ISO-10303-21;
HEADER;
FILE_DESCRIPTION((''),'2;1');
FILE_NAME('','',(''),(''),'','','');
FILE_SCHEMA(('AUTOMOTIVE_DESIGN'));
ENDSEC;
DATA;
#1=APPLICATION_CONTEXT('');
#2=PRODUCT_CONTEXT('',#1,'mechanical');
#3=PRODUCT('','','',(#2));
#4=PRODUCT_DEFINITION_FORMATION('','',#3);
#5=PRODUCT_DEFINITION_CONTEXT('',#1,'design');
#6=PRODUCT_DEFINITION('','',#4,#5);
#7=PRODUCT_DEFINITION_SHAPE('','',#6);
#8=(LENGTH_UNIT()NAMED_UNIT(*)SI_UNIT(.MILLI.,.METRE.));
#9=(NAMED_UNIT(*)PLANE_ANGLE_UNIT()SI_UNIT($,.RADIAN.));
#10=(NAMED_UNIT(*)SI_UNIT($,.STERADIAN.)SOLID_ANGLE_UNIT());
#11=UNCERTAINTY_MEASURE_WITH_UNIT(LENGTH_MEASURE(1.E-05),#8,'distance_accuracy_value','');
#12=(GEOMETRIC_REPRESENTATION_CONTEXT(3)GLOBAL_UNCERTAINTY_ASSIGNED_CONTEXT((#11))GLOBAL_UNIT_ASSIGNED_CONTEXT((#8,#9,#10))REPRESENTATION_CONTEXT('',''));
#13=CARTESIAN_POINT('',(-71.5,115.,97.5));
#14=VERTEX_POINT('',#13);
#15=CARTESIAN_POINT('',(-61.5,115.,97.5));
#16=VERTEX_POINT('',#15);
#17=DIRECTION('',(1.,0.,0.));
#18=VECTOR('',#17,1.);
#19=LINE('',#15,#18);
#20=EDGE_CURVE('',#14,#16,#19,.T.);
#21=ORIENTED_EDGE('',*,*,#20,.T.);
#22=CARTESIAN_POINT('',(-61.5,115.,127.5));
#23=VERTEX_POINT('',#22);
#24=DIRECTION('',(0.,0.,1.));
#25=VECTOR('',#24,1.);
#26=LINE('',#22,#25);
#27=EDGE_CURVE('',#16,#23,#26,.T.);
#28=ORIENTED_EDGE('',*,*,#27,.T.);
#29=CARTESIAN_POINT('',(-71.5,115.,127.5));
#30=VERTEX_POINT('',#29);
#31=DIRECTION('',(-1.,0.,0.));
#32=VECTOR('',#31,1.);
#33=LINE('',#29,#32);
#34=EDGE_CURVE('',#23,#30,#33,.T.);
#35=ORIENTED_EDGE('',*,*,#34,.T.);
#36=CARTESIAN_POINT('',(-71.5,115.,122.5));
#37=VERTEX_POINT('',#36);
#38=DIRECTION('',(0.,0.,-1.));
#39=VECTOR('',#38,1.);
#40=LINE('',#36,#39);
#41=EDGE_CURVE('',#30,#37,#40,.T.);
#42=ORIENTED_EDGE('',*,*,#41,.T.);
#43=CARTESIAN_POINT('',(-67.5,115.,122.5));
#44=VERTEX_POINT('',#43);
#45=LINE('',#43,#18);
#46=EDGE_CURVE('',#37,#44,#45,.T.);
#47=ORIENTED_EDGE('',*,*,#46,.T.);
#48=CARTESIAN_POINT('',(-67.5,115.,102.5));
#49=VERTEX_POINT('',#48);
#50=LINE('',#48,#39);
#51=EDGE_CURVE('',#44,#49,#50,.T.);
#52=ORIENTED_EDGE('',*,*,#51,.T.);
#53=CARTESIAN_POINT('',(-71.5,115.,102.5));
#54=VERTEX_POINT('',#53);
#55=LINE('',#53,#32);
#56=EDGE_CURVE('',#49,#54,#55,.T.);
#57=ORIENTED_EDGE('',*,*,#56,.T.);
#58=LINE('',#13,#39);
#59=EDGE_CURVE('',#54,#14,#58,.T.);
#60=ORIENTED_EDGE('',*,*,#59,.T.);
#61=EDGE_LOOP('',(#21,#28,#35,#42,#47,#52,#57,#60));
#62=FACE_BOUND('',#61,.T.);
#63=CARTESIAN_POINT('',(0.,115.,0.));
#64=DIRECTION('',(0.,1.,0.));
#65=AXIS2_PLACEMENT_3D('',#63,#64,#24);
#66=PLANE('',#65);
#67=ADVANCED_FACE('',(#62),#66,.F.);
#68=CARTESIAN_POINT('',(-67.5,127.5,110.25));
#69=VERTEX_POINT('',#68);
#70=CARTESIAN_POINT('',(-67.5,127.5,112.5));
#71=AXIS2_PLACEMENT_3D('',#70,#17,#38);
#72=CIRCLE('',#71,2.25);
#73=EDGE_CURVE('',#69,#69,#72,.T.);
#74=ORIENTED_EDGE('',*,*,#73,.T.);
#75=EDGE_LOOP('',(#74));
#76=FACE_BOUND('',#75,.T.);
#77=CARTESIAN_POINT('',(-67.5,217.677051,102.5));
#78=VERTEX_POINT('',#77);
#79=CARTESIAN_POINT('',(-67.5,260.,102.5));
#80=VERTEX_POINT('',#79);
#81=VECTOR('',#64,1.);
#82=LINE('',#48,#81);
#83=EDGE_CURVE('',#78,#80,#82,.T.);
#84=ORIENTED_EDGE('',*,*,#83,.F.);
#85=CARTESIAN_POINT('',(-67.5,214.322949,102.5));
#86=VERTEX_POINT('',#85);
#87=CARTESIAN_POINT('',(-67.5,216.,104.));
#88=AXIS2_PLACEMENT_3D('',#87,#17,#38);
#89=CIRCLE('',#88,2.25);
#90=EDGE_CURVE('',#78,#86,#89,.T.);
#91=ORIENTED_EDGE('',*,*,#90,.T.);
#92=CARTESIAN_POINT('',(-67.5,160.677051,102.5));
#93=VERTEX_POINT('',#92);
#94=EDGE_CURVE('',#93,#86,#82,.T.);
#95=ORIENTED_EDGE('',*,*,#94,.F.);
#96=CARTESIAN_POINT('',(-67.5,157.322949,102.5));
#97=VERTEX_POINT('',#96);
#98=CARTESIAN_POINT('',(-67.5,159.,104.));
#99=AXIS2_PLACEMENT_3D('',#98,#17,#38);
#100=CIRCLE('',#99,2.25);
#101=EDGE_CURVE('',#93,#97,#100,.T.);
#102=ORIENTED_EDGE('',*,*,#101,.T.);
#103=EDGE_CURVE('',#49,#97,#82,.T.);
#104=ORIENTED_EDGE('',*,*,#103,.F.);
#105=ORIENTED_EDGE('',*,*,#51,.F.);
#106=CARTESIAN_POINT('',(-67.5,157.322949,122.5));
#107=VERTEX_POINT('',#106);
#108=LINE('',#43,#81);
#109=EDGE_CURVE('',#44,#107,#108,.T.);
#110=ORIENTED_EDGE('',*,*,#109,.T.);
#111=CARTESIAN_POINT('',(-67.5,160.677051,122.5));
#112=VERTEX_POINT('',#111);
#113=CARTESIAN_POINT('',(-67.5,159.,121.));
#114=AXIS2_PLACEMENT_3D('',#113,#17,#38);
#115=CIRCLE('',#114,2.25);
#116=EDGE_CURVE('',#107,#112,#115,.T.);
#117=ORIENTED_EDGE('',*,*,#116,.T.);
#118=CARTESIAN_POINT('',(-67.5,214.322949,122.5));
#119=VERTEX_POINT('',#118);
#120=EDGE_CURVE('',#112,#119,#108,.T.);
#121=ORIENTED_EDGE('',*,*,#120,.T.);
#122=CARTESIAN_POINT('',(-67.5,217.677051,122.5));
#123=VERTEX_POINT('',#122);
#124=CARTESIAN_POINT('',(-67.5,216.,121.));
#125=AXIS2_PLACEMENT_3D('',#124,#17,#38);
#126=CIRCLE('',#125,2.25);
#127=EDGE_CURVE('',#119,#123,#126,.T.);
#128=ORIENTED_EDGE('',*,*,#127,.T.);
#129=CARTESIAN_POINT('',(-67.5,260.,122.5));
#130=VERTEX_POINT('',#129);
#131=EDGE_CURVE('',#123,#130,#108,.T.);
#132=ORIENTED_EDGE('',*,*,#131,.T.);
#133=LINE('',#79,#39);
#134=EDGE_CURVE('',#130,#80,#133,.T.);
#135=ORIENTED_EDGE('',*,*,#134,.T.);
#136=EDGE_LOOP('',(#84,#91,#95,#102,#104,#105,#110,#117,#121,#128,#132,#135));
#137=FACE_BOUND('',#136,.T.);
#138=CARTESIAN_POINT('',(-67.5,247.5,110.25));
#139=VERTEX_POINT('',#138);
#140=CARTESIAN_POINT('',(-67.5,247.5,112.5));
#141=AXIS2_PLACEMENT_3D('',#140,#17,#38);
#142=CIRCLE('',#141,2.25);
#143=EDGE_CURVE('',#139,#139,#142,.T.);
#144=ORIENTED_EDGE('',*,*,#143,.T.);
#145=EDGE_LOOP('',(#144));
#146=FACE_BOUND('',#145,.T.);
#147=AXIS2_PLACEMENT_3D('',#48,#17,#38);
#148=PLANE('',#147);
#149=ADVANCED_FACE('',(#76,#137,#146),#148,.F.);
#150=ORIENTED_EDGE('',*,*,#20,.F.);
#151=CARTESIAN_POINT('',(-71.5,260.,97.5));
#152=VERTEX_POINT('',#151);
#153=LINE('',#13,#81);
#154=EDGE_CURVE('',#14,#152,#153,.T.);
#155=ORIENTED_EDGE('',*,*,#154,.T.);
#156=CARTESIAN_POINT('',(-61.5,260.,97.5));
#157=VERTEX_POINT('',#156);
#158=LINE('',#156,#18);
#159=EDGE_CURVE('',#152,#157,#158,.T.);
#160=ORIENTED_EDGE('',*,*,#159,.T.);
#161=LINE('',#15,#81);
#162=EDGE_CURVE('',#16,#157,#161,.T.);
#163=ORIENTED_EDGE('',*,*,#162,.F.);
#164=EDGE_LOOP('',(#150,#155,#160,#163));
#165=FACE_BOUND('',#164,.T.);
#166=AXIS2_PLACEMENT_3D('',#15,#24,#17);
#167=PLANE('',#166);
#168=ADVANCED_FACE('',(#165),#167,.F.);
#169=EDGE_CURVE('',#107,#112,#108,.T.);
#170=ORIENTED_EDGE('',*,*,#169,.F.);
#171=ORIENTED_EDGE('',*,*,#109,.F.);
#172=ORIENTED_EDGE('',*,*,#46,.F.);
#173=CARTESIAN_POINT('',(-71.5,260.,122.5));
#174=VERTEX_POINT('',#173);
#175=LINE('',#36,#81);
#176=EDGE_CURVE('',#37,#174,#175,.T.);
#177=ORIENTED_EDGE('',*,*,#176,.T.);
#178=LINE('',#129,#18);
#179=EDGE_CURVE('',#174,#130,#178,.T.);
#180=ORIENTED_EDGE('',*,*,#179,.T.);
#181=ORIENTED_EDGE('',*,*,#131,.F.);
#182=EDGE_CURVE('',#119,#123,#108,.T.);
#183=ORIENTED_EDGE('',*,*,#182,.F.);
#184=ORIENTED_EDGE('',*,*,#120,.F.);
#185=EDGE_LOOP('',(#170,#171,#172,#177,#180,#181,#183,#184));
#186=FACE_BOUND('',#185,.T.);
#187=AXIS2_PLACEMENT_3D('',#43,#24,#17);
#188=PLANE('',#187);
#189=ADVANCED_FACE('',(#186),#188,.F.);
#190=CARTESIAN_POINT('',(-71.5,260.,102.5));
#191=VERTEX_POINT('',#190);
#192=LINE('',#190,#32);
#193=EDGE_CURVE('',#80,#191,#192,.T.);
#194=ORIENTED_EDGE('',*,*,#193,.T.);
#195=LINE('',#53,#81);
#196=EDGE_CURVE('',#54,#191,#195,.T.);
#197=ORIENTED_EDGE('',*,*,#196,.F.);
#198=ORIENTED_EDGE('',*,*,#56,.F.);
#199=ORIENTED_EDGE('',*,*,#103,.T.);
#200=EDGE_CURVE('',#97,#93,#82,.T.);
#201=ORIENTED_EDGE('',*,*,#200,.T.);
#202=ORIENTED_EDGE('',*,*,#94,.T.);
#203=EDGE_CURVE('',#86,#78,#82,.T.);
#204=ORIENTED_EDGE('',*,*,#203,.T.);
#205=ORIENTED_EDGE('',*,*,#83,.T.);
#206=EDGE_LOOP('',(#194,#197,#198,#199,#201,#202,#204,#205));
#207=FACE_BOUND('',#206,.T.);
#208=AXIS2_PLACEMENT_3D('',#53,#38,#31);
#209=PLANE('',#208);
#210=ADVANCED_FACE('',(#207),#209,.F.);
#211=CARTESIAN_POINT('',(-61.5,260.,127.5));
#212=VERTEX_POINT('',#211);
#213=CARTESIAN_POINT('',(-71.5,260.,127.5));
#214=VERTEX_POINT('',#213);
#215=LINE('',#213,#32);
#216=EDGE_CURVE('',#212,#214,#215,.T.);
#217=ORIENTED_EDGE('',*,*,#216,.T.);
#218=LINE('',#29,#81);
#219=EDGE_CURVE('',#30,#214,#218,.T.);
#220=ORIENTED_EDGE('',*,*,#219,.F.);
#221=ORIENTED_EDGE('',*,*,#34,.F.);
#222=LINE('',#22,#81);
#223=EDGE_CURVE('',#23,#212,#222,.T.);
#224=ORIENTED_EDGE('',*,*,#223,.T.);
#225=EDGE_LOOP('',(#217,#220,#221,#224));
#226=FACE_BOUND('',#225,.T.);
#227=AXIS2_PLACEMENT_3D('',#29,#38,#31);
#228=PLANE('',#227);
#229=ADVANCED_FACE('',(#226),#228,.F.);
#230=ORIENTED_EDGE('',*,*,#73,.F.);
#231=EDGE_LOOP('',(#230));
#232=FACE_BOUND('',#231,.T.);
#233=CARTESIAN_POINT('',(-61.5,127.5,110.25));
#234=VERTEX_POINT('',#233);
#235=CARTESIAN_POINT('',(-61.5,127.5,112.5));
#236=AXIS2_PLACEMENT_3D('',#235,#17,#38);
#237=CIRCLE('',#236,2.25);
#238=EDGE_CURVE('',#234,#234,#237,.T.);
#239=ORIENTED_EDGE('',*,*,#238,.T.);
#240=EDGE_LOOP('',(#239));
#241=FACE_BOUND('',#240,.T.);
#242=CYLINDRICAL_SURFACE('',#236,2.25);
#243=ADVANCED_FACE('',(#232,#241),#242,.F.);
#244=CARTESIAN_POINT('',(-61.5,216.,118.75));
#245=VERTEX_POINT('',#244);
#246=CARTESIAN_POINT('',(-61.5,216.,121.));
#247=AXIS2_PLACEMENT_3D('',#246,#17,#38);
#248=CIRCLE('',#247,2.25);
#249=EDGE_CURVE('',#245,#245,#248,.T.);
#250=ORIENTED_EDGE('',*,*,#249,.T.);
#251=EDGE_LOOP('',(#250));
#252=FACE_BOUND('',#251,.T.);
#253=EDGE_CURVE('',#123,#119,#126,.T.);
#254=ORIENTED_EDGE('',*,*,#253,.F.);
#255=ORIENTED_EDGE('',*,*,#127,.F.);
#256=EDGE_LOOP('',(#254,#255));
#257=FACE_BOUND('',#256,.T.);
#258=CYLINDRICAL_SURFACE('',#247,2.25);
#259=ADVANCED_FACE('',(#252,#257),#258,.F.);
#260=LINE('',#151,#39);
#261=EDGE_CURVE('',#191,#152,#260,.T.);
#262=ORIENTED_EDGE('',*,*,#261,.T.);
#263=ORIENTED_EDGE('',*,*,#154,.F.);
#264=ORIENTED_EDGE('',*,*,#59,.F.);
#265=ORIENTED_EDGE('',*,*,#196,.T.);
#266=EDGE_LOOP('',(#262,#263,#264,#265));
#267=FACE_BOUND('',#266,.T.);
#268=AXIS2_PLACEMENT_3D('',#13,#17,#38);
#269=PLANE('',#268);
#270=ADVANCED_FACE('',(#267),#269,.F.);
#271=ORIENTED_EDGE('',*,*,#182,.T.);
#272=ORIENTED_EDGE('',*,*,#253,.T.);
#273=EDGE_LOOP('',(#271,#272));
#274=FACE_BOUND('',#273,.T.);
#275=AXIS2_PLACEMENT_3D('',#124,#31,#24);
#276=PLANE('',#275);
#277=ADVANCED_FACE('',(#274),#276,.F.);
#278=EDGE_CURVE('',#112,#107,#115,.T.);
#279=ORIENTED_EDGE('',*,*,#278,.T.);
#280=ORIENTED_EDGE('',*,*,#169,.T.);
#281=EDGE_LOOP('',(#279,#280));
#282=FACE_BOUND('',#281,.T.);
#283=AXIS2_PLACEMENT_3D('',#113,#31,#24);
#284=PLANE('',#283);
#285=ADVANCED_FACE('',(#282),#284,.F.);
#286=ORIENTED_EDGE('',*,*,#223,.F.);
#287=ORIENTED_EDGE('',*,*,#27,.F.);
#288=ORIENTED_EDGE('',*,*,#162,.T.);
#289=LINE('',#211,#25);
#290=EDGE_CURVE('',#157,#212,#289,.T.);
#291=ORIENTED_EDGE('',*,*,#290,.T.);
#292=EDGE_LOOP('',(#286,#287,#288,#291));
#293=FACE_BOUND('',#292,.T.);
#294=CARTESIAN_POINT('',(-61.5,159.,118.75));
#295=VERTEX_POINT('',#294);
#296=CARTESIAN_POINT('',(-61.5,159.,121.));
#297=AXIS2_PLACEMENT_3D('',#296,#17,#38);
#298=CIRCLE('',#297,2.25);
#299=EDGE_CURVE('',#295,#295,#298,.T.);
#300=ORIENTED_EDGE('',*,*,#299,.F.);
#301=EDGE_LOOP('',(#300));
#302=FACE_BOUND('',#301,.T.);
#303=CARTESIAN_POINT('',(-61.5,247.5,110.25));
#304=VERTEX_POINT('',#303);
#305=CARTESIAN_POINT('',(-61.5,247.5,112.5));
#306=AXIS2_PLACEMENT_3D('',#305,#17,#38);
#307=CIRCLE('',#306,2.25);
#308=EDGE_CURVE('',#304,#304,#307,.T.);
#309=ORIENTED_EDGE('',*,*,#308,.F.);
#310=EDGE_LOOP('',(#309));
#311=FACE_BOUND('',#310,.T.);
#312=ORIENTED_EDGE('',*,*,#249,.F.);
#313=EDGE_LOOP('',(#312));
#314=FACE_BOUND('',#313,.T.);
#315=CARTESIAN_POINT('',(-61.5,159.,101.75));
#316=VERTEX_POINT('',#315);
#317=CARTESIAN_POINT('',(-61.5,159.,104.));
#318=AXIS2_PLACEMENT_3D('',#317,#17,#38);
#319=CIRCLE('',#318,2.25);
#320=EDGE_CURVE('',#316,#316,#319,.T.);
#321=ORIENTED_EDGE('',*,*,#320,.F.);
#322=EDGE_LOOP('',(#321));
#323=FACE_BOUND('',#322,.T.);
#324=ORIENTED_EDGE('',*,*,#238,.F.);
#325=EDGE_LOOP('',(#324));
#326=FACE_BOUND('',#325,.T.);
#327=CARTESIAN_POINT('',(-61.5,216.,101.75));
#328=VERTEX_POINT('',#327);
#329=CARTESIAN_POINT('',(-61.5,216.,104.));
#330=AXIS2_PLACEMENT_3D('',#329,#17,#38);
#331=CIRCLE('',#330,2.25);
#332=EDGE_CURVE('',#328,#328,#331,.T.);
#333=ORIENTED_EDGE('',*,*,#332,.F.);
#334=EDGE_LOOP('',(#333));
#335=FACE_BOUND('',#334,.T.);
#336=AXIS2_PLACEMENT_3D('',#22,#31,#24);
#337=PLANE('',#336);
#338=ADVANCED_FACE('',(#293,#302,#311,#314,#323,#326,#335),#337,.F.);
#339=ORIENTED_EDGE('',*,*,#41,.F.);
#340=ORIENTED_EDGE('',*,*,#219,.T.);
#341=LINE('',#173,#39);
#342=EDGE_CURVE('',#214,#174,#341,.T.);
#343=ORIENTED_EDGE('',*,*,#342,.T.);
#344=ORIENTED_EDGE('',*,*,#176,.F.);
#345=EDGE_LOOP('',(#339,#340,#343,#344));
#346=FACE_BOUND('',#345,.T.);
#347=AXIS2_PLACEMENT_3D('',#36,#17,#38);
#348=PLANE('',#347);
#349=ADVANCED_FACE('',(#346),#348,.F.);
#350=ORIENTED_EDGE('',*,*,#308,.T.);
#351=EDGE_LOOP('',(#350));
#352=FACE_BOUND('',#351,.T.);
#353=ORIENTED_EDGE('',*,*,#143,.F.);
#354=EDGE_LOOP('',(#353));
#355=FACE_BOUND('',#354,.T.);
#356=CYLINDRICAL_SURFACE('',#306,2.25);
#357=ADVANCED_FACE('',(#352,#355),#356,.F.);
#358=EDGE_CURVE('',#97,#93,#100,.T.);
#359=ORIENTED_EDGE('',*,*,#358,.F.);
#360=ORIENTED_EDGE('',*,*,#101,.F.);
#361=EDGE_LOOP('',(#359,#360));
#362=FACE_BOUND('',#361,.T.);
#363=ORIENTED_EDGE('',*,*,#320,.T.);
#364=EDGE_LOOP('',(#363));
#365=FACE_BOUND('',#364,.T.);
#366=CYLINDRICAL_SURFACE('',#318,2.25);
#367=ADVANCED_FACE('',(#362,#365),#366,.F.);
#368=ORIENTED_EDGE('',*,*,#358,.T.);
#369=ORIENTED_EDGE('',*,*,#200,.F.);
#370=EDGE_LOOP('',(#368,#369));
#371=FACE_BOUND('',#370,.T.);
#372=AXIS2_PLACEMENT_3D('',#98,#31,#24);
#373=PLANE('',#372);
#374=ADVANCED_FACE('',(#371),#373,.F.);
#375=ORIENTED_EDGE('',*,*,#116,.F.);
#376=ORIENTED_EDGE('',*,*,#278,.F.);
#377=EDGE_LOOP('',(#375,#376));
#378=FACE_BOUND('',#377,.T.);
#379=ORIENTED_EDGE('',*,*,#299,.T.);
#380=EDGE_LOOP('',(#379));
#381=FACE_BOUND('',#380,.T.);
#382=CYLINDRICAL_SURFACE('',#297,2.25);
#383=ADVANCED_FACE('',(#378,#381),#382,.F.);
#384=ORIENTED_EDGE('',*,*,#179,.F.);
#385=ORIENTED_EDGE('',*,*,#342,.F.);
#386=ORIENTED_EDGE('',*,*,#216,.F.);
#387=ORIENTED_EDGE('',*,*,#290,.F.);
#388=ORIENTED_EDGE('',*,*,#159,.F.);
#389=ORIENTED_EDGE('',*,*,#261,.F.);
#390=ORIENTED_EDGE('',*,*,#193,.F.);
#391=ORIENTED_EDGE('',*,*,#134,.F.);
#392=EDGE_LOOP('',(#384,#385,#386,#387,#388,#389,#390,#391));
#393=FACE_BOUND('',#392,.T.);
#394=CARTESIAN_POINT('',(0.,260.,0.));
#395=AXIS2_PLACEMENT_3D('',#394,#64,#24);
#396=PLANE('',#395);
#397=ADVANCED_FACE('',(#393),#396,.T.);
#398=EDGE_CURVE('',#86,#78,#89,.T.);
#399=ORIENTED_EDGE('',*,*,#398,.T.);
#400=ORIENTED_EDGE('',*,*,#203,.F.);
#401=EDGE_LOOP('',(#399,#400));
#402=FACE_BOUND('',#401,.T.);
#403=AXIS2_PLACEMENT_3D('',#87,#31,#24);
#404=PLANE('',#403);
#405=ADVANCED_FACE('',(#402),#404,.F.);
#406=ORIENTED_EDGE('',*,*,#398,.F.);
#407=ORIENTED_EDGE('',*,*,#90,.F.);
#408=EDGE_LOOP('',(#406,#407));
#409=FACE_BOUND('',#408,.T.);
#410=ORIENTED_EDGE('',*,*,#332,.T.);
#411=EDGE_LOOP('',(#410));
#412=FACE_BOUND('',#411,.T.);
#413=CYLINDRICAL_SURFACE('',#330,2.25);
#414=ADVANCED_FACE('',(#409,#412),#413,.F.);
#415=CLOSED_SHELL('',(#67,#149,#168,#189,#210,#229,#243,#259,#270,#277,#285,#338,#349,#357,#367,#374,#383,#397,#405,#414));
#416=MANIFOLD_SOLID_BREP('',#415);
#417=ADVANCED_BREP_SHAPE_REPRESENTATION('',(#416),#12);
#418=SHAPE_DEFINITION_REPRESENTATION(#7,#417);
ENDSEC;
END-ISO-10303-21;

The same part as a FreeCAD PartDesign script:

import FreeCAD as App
import Part
import Sketcher

doc = App.newDocument("Part")
body = doc.addObject("PartDesign::Body", "Body")

sketch1 = body.newObject("Sketcher::SketchObject", "Sketch")
sketch1.AttachmentSupport = (doc.getObject("XZ_Plane"), [""])
sketch1.MapMode = "FlatFace"
sketch1.AttachmentOffset = App.Placement(App.Vector(0, 0, -260), App.Rotation())
sketch1.addGeometry([
    Part.LineSegment(App.Vector(-61.5, 127.5, 0), App.Vector(-71.5, 127.5, 0)),
    Part.LineSegment(App.Vector(-71.5, 127.5, 0), App.Vector(-71.5, 122.5, 0)),
    Part.LineSegment(App.Vector(-71.5, 122.5, 0), App.Vector(-67.5, 122.5, 0)),
    Part.LineSegment(App.Vector(-67.5, 122.5, 0), App.Vector(-67.5, 102.5, 0)),
    Part.LineSegment(App.Vector(-67.5, 102.5, 0), App.Vector(-71.5, 102.5, 0)),
    Part.LineSegment(App.Vector(-71.5, 102.5, 0), App.Vector(-71.5, 97.5, 0)),
    Part.LineSegment(App.Vector(-71.5, 97.5, 0), App.Vector(-61.5, 97.5, 0)),
    Part.LineSegment(App.Vector(-61.5, 97.5, 0), App.Vector(-61.5, 127.5, 0)),
], False)
sketch1.addConstraint([
    Sketcher.Constraint("Coincident", 0, 2, 1, 1),
    Sketcher.Constraint("Coincident", 1, 2, 2, 1),
    Sketcher.Constraint("Coincident", 2, 2, 3, 1),
    Sketcher.Constraint("Coincident", 3, 2, 4, 1),
    Sketcher.Constraint("Coincident", 4, 2, 5, 1),
    Sketcher.Constraint("Coincident", 5, 2, 6, 1),
    Sketcher.Constraint("Coincident", 6, 2, 7, 1),
    Sketcher.Constraint("Coincident", 7, 2, 0, 1),
    Sketcher.Constraint("Horizontal", 0),
    Sketcher.Constraint("Vertical", 1),
    Sketcher.Constraint("Horizontal", 2),
    Sketcher.Constraint("Vertical", 3),
    Sketcher.Constraint("Horizontal", 4),
    Sketcher.Constraint("Vertical", 5),
    Sketcher.Constraint("Horizontal", 6),
    Sketcher.Constraint("Vertical", 7),
    Sketcher.Constraint("Vertical", 1, 2, 4, 2),
    Sketcher.Constraint("Equal", 1, 5),
    Sketcher.Constraint("DistanceX", 0, 2, 0, 1, 10.0),
    Sketcher.Constraint("DistanceX", 2, 1, 2, 2, 4.0),
    Sketcher.Constraint("DistanceY", 1, 2, 1, 1, 5.0),
    Sketcher.Constraint("DistanceY", 3, 2, 3, 1, 20.0),
    Sketcher.Constraint("DistanceX", 0, 2, -1, 1, 71.5),
    Sketcher.Constraint("DistanceY", -1, 1, 0, 2, 127.5),
])
pad1 = body.newObject("PartDesign::Pad", "Pad")
pad1.Profile = sketch1
pad1.Length = 145

sketch2 = body.newObject("Sketcher::SketchObject", "Sketch001")
sketch2.AttachmentSupport = (doc.getObject("YZ_Plane"), [""])
sketch2.MapMode = "FlatFace"
sketch2.AttachmentOffset = App.Placement(App.Vector(0, 0, -61.5), App.Rotation())
sketch2.addGeometry([
    Part.Circle(App.Vector(247.5, 112.5, 0), App.Vector(0, 0, 1), 2.25),
    Part.Circle(App.Vector(127.5, 112.5, 0), App.Vector(0, 0, 1), 2.25),
], False)
sketch2.addConstraint([
    Sketcher.Constraint("Equal", 0, 1),
    Sketcher.Constraint("Horizontal", 0, 3, 1, 3),
    Sketcher.Constraint("Diameter", 0, 4.5),
    Sketcher.Constraint("DistanceX", 1, 3, 0, 3, 120.0),
    Sketcher.Constraint("DistanceX", -1, 1, 0, 3, 247.5),
    Sketcher.Constraint("DistanceY", -1, 1, 0, 3, 112.5),
])
doc.recompute()
hole = body.newObject("PartDesign::Hole", "Hole")
hole.Profile = sketch2
hole.ThreadType = "None"
hole.Diameter = 4.5
hole.DepthType = "ThroughAll"

sketch3 = body.newObject("Sketcher::SketchObject", "Sketch002")
sketch3.AttachmentSupport = (doc.getObject("YZ_Plane"), [""])
sketch3.MapMode = "FlatFace"
sketch3.AttachmentOffset = App.Placement(App.Vector(0, 0, -61.5), App.Rotation())
sketch3.addGeometry([
    Part.Circle(App.Vector(216, 104, 0), App.Vector(0, 0, 1), 2.25),
    Part.Circle(App.Vector(216, 121, 0), App.Vector(0, 0, 1), 2.25),
    Part.Circle(App.Vector(159, 104, 0), App.Vector(0, 0, 1), 2.25),
    Part.Circle(App.Vector(159, 121, 0), App.Vector(0, 0, 1), 2.25),
], False)
sketch3.addConstraint([
    Sketcher.Constraint("Equal", 0, 1),
    Sketcher.Constraint("Equal", 1, 2),
    Sketcher.Constraint("Equal", 2, 3),
    Sketcher.Constraint("Horizontal", 0, 3, 2, 3),
    Sketcher.Constraint("Horizontal", 1, 3, 3, 3),
    Sketcher.Constraint("Vertical", 0, 3, 1, 3),
    Sketcher.Constraint("Vertical", 2, 3, 3, 3),
    Sketcher.Constraint("Diameter", 0, 4.5),
    Sketcher.Constraint("DistanceX", -1, 1, 0, 3, 216.0),
    Sketcher.Constraint("DistanceY", -1, 1, 0, 3, 104.0),
    Sketcher.Constraint("DistanceY", -1, 1, 1, 3, 121.0),
    Sketcher.Constraint("DistanceX", -1, 1, 2, 3, 159.0),
])
doc.recompute()
hole2 = body.newObject("PartDesign::Hole", "Hole001")
hole2.Profile = sketch3
hole2.ThreadType = "None"
hole2.Diameter = 4.5
hole2.DepthType = "Dimension"
hole2.Depth = 6
hole2.DrillPoint = "Flat"

doc.recompute()
